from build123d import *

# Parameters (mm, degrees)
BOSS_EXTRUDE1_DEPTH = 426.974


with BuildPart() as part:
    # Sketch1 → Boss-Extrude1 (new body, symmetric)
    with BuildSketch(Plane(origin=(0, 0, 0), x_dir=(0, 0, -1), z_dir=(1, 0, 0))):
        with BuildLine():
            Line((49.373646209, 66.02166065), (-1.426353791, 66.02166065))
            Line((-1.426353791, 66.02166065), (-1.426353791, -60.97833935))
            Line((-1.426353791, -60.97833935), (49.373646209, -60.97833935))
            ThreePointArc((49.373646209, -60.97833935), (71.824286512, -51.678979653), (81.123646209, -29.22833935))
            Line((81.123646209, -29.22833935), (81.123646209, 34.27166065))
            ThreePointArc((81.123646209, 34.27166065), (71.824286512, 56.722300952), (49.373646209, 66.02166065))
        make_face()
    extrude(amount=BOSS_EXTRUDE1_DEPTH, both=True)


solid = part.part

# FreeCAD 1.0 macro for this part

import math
import FreeCAD as App
import Part
import Sketcher
Q = App.Units.Quantity

doc = App.newDocument("Part")
body = doc.addObject("PartDesign::Body", "Body")

# Sketch on YZ plane
sketch1 = body.newObject("Sketcher::SketchObject", "Sketch")
sketch1.AttachmentSupport = (doc.getObject("YZ_Plane"), [""])
sketch1.MapMode = "FlatFace"
sketch1.addGeometry(Part.LineSegment(App.Vector(66, -49, 0), App.Vector(66, 1, 0)), False)
sketch1.addGeometry(Part.LineSegment(App.Vector(66, 1, 0), App.Vector(-61, 1, 0)), False)
sketch1.addGeometry(Part.LineSegment(App.Vector(-61, 1, 0), App.Vector(-61, -49, 0)), False)
sketch1.addGeometry(Part.ArcOfCircle(Part.Circle(App.Vector(-29, -49, 0), App.Vector(0, 0, 1), 32), math.radians(180), math.radians(270)), False)
sketch1.addGeometry(Part.LineSegment(App.Vector(-29, -81, 0), App.Vector(34, -81, 0)), False)
sketch1.addGeometry(Part.ArcOfCircle(Part.Circle(App.Vector(34, -49, 0), App.Vector(0, 0, 1), 32), math.radians(-90), math.radians(0)), False)
sketch1.addConstraint(Sketcher.Constraint("Coincident", 0, 2, 1, 1))
sketch1.addConstraint(Sketcher.Constraint("Coincident", 1, 2, 2, 1))
sketch1.addConstraint(Sketcher.Constraint("Tangent", 2, 2, 3, 1))
sketch1.addConstraint(Sketcher.Constraint("Tangent", 3, 2, 4, 1))
sketch1.addConstraint(Sketcher.Constraint("Tangent", 4, 2, 5, 1))
sketch1.addConstraint(Sketcher.Constraint("Tangent", 5, 2, 0, 1))
sketch1.addConstraint(Sketcher.Constraint("Vertical", 0))
sketch1.addConstraint(Sketcher.Constraint("Horizontal", 1))
sketch1.addConstraint(Sketcher.Constraint("Vertical", 2))
sketch1.addConstraint(Sketcher.Constraint("Horizontal", 4))
sketch1.addConstraint(Sketcher.Constraint("Equal", 3, 5))
sketch1.addConstraint(Sketcher.Constraint("DistanceX", 1, 2, 1, 1, Q("5 in")))
sketch1.addConstraint(Sketcher.Constraint("DistanceY", 0, 1, 0, 2, Q("2 in")))
sketch1.addConstraint(Sketcher.Constraint("Radius", 3, Q("1.25 in")))
sketch1.addConstraint(Sketcher.Constraint("DistanceX", 3, 3, -1, 1, Q("29.228339 mm")))
sketch1.addConstraint(Sketcher.Constraint("DistanceY", 3, 3, -1, 1, Q("49.373646 mm")))
pad1 = body.newObject("PartDesign::Pad", "Pad")
pad1.Profile = sketch1
pad1.Length = Q("33.62 in")
pad1.Midplane = True

doc.recompute()
